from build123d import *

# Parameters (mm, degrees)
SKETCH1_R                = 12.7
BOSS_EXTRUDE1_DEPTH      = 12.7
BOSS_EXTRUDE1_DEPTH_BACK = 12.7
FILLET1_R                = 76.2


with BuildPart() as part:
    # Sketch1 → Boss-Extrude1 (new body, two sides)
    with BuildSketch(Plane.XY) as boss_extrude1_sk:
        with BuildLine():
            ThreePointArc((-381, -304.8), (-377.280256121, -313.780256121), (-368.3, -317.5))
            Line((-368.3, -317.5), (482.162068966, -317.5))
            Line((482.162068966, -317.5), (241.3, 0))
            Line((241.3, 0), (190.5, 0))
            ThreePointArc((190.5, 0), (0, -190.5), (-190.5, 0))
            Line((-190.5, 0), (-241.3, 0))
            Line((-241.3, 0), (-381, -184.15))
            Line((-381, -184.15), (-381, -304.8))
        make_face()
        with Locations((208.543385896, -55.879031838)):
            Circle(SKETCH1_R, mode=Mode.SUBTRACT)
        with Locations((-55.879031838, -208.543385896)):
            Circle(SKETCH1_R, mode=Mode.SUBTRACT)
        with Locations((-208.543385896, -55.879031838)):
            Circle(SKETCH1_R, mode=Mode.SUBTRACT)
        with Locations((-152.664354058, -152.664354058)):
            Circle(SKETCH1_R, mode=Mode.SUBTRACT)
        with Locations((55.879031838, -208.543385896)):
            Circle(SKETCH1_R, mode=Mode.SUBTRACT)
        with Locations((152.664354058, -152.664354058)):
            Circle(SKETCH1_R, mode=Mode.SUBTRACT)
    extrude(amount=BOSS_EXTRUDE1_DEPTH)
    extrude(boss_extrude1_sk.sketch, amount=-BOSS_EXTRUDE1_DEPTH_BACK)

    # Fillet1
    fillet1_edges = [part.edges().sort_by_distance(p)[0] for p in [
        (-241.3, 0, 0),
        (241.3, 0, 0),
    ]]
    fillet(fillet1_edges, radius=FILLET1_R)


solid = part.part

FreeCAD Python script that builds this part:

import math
import FreeCAD as App
import Part
import Sketcher
from FreeCAD import Vector
Q = App.Units.Quantity


def edges_at(feature, points):
    """Names of the edges that pass closest to the given points."""
    edges = feature.Shape.Edges
    near = lambda p: min(range(len(edges)), key=lambda i: edges[i].distToShape(Part.Vertex(*p))[0])
    return sorted({f"Edge{near(p) + 1}" for p in points})

doc = App.newDocument("Part")
params = doc.addObject("Spreadsheet::Sheet", "Params")
for row, (alias, value) in enumerate([
    ("sketch1_diameter", "1 in"),
    ("sketch1_radius", "7.5 in"),
    ("sketch1_width", "2 in"),
    ("sketch1_height", "4.75 in"),
    ("pad1_length", "0.5 in"),
    ("pad1_length2", "0.5 in"),
    ("fillet_radius", "3 in"),
], start=1):
    params.set(f"A{row}", alias)
    params.set(f"B{row}", "=" + value)
    params.setAlias(f"B{row}", alias)

body = doc.addObject("PartDesign::Body", "Body")

# Sketch on XY plane
sketch1 = body.newObject("Sketcher::SketchObject", "Sketch")
sketch1.AttachmentSupport = (doc.getObject("XY_Plane"), [""])
sketch1.MapMode = "FlatFace"
sketch1.addGeometry([
    Part.ArcOfCircle(Part.Circle(Vector(-368, -305, 0), Vector(0, 0, 1), 13), math.radians(180), math.radians(270)),  # 0
    Part.LineSegment(Vector(-368, -318, 0), Vector(482, -318, 0)),  # 1
    Part.LineSegment(Vector(482, -318, 0), Vector(241, 0, 0)),  # 2
    Part.LineSegment(Vector(241, 0, 0), Vector(190, 0, 0)),  # 3
    Part.ArcOfCircle(Part.Circle(Vector(0, 0, 0), Vector(0, 0, 1), 190), math.radians(180), math.radians(360)),  # 4
    Part.LineSegment(Vector(-190, 0, 0), Vector(-241, 0, 0)),  # 5
    Part.LineSegment(Vector(-241, 0, 0), Vector(-381, -184, 0)),  # 6
    Part.LineSegment(Vector(-381, -184, 0), Vector(-381, -305, 0)),  # 7
    Part.Circle(Vector(-56, -209, 0), Vector(0, 0, 1), 13),  # 8
    Part.Circle(Vector(-153, -153, 0), Vector(0, 0, 1), 13),  # 9
    Part.Circle(Vector(56, -209, 0), Vector(0, 0, 1), 13),  # 10
    Part.Circle(Vector(153, -153, 0), Vector(0, 0, 1), 13),  # 11
    Part.Circle(Vector(-209, -56, 0), Vector(0, 0, 1), 13),  # 12
    Part.Circle(Vector(209, -56, 0), Vector(0, 0, 1), 13),  # 13
], False)
sketch1.addConstraint([
    Sketcher.Constraint("Tangent", 0, 2, 1, 1),
    Sketcher.Constraint("Coincident", 1, 2, 2, 1),
    Sketcher.Constraint("Coincident", 2, 2, 3, 1),
    Sketcher.Constraint("Coincident", 3, 2, 4, 2),
    Sketcher.Constraint("Coincident", 4, 1, 5, 1),
    Sketcher.Constraint("Coincident", 5, 2, 6, 1),
    Sketcher.Constraint("Coincident", 6, 2, 7, 1),
    Sketcher.Constraint("Tangent", 7, 2, 0, 1),
    Sketcher.Constraint("Horizontal", 1),
    Sketcher.Constraint("Horizontal", 3),
    Sketcher.Constraint("Horizontal", 5),
    Sketcher.Constraint("Vertical", 7),
    Sketcher.Constraint("Coincident", 4, 3, -1, 1),
    Sketcher.Constraint("Equal", 0, 8),
    Sketcher.Constraint("Equal", 8, 9),
    Sketcher.Constraint("Equal", 9, 10),
    Sketcher.Constraint("Equal", 10, 11),
    Sketcher.Constraint("Equal", 11, 12),
    Sketcher.Constraint("Equal", 12, 13),
    Sketcher.Constraint("Symmetric", 2, 2, 5, 2, -1, 1),
    Sketcher.Constraint("Symmetric", 8, 3, 10, 3, -2),
    Sketcher.Constraint("Symmetric", 9, 3, 11, 3, -2),
    Sketcher.Constraint("Symmetric", 12, 3, 13, 3, -2),
    Sketcher.Constraint("PointOnObject", 2, 2, -1),
    Sketcher.Constraint("Diameter", 8, Q("1 in")),
    Sketcher.Constraint("Radius", 4, Q("7.5 in")),
    Sketcher.Constraint("DistanceX", 3, 2, 3, 1, Q("2 in")),
    Sketcher.Constraint("DistanceY", 0, 3, -1, 1, Q("12 in")),
    Sketcher.Constraint("DistanceX", 6, 2, -1, 1, Q("15 in")),
    Sketcher.Constraint("DistanceY", 7, 2, 7, 1, Q("4.75 in")),
    Sketcher.Constraint("DistanceX", 1, 1, 1, 2, 850.462069),
    Sketcher.Constraint("DistanceX", 8, 3, 1, 2, 538.041101),
    Sketcher.Constraint("DistanceY", 12, 3, -1, 1, 55.879032),
    Sketcher.Constraint("DistanceY", 8, 3, 9, 3, 55.879032),
    Sketcher.Constraint("DistanceX", 9, 3, 11, 3, 305.328708),
    Sketcher.Constraint("DistanceX", 12, 3, 9, 3, 55.879032),
    Sketcher.Constraint("DistanceY", 8, 3, -1, 1, 208.543386),
])
sketch1.setExpression("Constraints[24]", "Params.sketch1_diameter")
sketch1.setExpression("Constraints[25]", "Params.sketch1_radius")
sketch1.setExpression("Constraints[26]", "Params.sketch1_width")
sketch1.setExpression("Constraints[29]", "Params.sketch1_height")
pad1 = body.newObject("PartDesign::Pad", "Pad")
pad1.Profile = sketch1
pad1.Type = "TwoLengths"
pad1.setExpression("Length", "Params.pad1_length")
pad1.setExpression("Length2", "Params.pad1_length2")
doc.recompute()

fillet = body.newObject("PartDesign::Fillet", "Fillet")
fillet.Base = (pad1, edges_at(pad1, [(-241.3, 0, 0), (241.3, 0, 0)]))
fillet.setExpression("Radius", "Params.fillet_radius")

doc.recompute()
